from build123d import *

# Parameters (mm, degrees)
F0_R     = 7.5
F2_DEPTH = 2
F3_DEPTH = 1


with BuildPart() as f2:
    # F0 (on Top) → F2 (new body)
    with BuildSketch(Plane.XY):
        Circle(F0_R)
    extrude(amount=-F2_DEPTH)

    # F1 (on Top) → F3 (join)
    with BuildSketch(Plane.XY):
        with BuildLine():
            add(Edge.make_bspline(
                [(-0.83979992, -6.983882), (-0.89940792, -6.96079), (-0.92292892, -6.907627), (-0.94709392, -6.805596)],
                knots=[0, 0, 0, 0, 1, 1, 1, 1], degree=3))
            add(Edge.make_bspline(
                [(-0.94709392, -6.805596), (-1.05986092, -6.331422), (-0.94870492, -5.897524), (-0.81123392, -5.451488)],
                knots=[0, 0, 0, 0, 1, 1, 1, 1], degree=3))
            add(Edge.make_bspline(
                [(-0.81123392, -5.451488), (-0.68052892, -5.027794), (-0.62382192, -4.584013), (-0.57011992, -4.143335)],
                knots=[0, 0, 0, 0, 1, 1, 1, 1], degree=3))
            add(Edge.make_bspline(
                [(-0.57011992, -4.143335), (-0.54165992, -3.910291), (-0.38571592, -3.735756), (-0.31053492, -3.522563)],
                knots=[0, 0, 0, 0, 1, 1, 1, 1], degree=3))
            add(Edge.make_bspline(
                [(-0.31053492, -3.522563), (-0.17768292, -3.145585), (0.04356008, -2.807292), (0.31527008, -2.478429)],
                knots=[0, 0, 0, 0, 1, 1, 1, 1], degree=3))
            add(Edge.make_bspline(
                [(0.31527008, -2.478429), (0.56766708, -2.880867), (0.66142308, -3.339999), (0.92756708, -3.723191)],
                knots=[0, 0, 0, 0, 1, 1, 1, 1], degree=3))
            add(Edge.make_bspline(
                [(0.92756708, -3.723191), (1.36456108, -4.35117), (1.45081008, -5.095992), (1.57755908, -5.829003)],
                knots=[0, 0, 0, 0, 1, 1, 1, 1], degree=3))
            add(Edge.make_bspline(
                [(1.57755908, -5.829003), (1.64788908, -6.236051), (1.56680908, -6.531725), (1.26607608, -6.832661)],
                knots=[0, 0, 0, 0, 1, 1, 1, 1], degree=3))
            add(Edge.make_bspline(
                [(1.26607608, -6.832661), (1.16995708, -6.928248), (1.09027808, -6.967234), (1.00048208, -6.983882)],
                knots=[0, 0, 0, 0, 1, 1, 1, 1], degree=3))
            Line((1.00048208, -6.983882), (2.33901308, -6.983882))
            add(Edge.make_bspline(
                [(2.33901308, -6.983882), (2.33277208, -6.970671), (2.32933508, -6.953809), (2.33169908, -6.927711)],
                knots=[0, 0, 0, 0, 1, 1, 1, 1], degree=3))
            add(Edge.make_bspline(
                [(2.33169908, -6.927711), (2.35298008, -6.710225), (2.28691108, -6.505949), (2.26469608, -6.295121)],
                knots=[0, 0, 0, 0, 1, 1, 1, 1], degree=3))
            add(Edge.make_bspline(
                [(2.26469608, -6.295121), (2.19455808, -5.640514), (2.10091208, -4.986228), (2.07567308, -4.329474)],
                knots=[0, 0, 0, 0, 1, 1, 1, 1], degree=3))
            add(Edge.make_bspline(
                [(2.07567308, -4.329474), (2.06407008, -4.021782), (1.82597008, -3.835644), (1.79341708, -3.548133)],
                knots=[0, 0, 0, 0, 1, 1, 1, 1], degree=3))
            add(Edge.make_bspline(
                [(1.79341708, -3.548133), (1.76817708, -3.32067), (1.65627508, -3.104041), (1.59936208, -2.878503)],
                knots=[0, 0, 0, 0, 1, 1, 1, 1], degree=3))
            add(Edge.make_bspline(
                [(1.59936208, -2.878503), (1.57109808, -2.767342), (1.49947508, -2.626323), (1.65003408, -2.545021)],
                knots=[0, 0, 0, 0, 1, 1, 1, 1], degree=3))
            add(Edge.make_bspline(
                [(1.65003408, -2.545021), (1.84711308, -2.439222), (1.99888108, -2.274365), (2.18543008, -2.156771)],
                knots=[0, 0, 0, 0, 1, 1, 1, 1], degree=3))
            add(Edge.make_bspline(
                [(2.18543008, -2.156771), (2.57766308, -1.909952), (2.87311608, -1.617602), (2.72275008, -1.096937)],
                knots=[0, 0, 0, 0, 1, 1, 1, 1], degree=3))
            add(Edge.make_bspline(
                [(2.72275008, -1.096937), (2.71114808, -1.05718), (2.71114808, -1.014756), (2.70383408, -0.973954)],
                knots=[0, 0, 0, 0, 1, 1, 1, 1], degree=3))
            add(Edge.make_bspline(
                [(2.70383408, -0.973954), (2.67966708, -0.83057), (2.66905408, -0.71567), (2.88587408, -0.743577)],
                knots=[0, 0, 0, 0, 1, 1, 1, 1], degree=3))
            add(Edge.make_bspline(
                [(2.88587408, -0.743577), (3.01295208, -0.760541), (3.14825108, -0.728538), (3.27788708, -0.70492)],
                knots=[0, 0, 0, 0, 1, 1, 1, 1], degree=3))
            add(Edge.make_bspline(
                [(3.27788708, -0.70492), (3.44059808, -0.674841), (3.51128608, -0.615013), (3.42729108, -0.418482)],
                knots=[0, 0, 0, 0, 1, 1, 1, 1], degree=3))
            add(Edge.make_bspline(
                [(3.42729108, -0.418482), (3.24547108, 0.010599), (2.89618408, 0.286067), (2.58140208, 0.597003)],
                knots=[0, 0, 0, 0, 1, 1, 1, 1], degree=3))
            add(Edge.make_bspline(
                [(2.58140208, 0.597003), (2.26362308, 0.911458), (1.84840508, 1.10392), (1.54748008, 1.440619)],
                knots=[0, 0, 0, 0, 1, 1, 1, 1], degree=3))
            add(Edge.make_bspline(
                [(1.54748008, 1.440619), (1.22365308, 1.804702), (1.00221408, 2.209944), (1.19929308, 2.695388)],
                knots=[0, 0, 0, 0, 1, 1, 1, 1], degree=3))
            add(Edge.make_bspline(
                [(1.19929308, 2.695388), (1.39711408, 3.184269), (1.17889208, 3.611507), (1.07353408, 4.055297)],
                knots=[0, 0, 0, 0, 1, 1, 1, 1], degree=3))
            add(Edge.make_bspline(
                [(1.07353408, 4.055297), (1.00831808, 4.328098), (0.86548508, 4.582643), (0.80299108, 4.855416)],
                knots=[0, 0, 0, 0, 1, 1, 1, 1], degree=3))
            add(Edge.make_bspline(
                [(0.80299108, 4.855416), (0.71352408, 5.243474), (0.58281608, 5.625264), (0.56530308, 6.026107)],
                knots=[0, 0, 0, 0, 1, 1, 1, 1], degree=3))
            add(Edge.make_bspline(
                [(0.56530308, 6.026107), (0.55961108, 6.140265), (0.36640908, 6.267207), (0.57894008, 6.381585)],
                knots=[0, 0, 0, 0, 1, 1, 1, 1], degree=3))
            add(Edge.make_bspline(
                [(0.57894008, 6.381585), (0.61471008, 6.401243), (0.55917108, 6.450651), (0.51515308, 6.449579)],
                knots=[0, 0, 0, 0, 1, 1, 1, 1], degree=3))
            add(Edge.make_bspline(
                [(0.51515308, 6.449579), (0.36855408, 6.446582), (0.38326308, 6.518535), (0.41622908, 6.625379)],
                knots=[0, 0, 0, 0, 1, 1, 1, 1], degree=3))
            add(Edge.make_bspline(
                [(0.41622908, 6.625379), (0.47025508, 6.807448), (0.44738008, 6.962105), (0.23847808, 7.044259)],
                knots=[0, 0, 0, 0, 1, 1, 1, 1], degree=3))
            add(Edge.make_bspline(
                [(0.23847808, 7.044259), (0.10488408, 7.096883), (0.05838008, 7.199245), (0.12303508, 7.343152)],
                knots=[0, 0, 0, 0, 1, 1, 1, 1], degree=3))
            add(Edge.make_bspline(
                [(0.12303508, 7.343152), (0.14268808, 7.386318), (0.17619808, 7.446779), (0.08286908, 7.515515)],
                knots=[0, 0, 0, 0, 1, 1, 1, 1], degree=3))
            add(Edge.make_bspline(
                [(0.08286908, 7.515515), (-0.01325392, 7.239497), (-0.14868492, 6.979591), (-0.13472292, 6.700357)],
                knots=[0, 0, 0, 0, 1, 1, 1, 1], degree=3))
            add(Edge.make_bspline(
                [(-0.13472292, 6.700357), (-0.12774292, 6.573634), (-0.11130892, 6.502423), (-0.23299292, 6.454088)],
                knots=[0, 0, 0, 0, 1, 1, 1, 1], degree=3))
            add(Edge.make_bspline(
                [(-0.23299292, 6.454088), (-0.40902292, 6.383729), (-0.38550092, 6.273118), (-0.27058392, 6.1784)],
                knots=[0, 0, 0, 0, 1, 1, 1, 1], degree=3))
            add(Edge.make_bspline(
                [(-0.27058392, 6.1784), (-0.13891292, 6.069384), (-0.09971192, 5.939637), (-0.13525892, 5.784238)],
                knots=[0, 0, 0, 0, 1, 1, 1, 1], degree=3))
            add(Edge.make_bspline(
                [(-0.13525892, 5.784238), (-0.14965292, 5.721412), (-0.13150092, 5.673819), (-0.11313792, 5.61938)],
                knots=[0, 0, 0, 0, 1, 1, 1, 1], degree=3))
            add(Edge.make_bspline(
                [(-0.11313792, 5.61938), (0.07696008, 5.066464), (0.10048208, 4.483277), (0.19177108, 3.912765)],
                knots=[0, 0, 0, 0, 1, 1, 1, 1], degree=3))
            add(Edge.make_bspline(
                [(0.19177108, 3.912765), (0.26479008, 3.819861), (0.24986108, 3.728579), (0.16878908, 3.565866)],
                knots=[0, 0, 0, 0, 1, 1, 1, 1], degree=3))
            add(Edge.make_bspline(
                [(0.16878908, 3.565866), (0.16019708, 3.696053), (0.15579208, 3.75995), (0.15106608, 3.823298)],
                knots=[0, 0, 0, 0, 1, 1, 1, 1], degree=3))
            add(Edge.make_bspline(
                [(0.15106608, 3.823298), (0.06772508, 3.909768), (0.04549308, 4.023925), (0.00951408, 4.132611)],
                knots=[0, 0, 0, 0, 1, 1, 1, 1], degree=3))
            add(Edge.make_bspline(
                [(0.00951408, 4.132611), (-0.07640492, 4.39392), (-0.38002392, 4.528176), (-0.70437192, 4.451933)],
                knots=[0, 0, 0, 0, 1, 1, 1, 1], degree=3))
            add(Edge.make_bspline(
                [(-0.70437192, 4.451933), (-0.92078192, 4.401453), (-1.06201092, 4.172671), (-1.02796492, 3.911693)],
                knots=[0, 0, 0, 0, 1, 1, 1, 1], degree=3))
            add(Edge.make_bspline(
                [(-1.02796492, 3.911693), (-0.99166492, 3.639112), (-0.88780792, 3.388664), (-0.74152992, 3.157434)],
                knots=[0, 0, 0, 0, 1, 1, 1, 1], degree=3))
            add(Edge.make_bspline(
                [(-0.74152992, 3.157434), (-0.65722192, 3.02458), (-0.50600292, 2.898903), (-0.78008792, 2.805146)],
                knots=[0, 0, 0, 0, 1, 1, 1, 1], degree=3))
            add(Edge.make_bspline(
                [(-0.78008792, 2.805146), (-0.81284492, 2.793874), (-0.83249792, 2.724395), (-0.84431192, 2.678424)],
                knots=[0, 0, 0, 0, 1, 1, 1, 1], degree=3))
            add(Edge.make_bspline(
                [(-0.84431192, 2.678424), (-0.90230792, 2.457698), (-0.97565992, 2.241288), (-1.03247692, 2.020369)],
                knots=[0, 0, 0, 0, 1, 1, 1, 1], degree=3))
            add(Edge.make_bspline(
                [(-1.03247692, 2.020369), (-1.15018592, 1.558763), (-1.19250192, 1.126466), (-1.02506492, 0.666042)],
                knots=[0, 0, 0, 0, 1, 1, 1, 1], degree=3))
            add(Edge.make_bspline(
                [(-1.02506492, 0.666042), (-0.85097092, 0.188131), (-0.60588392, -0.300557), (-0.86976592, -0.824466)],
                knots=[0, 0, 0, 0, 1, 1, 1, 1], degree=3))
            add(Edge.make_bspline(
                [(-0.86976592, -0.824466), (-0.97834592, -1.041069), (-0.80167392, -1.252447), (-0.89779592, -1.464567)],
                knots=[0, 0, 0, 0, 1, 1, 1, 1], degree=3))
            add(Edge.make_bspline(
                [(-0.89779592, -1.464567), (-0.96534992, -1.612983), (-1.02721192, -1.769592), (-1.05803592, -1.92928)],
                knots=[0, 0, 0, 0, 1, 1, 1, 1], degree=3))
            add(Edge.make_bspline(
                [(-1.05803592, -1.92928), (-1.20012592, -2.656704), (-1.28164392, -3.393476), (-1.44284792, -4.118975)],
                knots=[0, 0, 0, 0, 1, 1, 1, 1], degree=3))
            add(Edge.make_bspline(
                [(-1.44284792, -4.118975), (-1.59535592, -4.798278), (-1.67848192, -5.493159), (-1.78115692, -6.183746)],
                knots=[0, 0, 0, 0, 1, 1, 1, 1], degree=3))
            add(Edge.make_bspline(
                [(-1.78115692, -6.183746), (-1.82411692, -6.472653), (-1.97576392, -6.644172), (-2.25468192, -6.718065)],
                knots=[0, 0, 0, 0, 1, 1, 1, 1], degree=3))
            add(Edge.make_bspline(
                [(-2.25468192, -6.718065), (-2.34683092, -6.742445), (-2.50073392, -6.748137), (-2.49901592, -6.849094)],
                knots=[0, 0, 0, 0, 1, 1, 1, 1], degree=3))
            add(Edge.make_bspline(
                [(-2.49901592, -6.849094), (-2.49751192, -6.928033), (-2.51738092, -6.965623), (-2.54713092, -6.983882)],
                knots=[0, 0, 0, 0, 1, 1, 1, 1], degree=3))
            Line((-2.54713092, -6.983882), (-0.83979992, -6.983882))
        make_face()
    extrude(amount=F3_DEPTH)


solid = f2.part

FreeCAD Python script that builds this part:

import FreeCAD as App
import Part
import Sketcher

V = App.Vector

doc = App.newDocument("Part")
body = doc.addObject("PartDesign::Body", "Body")

# Sketch on XY plane
sketch1 = body.newObject("Sketcher::SketchObject", "Sketch")
sketch1.AttachmentSupport = (doc.getObject("XY_Plane"), [""])
sketch1.MapMode = "FlatFace"
sketch1.addGeometry(Part.Circle(V(0, 0, 0), V(0, 0, 1), 8), False)
sketch1.addConstraint(Sketcher.Constraint("Coincident", 0, 3, -1, 1))
sketch1.addConstraint(Sketcher.Constraint("Diameter", 0, 15.0))
pad1 = body.newObject("PartDesign::Pad", "Pad")
pad1.Profile = sketch1
pad1.Length = 2
pad1.Reversed = True

# Sketch on XY plane
sketch2 = body.newObject("Sketcher::SketchObject", "Sketch001")
sketch2.AttachmentSupport = (doc.getObject("XY_Plane"), [""])
sketch2.MapMode = "FlatFace"
sketch2.addGeometry(Part.BSplineCurve([V(-0.8398, -6.983882, 0), V(-0.899408, -6.96079, 0), V(-0.922929, -6.907627, 0), V(-0.947094, -6.805596, 0)], [4, 4], [0, 1], False, 3, [1, 1, 1, 1], False), False)
sketch2.addGeometry(Part.BSplineCurve([V(-0.947094, -6.805596, 0), V(-1.059861, -6.331422, 0), V(-0.948705, -5.897524, 0), V(-0.811234, -5.451488, 0)], [4, 4], [0, 1], False, 3, [1, 1, 1, 1], False), False)
sketch2.addGeometry(Part.BSplineCurve([V(-0.811234, -5.451488, 0), V(-0.680529, -5.027794, 0), V(-0.623822, -4.584013, 0), V(-0.57012, -4.143335, 0)], [4, 4], [0, 1], False, 3, [1, 1, 1, 1], False), False)
sketch2.addGeometry(Part.BSplineCurve([V(-0.57012, -4.143335, 0), V(-0.54166, -3.910291, 0), V(-0.385716, -3.735756, 0), V(-0.310535, -3.522563, 0)], [4, 4], [0, 1], False, 3, [1, 1, 1, 1], False), False)
sketch2.addGeometry(Part.BSplineCurve([V(-0.310535, -3.522563, 0), V(-0.177683, -3.145585, 0), V(0.04356, -2.807292, 0), V(0.31527, -2.478429, 0)], [4, 4], [0, 1], False, 3, [1, 1, 1, 1], False), False)
sketch2.addGeometry(Part.BSplineCurve([V(0.31527, -2.478429, 0), V(0.567667, -2.880867, 0), V(0.661423, -3.339999, 0), V(0.927567, -3.723191, 0)], [4, 4], [0, 1], False, 3, [1, 1, 1, 1], False), False)
sketch2.addGeometry(Part.BSplineCurve([V(0.927567, -3.723191, 0), V(1.364561, -4.35117, 0), V(1.45081, -5.095992, 0), V(1.577559, -5.829003, 0)], [4, 4], [0, 1], False, 3, [1, 1, 1, 1], False), False)
sketch2.addGeometry(Part.BSplineCurve([V(1.577559, -5.829003, 0), V(1.647889, -6.236051, 0), V(1.566809, -6.531725, 0), V(1.266076, -6.832661, 0)], [4, 4], [0, 1], False, 3, [1, 1, 1, 1], False), False)
sketch2.addGeometry(Part.BSplineCurve([V(1.266076, -6.832661, 0), V(1.169957, -6.928248, 0), V(1.090278, -6.967234, 0), V(1.000482, -6.983882, 0)], [4, 4], [0, 1], False, 3, [1, 1, 1, 1], False), False)
sketch2.addGeometry(Part.LineSegment(V(1.000482, -6.983882, 0), V(2.339013, -6.983882, 0)), False)
sketch2.addGeometry(Part.BSplineCurve([V(2.339013, -6.983882, 0), V(2.332772, -6.970671, 0), V(2.329335, -6.953809, 0), V(2.331699, -6.927711, 0)], [4, 4], [0, 1], False, 3, [1, 1, 1, 1], False), False)
sketch2.addGeometry(Part.BSplineCurve([V(2.331699, -6.927711, 0), V(2.35298, -6.710225, 0), V(2.286911, -6.505949, 0), V(2.264696, -6.295121, 0)], [4, 4], [0, 1], False, 3, [1, 1, 1, 1], False), False)
sketch2.addGeometry(Part.BSplineCurve([V(2.264696, -6.295121, 0), V(2.194558, -5.640514, 0), V(2.100912, -4.986228, 0), V(2.075673, -4.329474, 0)], [4, 4], [0, 1], False, 3, [1, 1, 1, 1], False), False)
sketch2.addGeometry(Part.BSplineCurve([V(2.075673, -4.329474, 0), V(2.06407, -4.021782, 0), V(1.82597, -3.835644, 0), V(1.793417, -3.548133, 0)], [4, 4], [0, 1], False, 3, [1, 1, 1, 1], False), False)
sketch2.addGeometry(Part.BSplineCurve([V(1.793417, -3.548133, 0), V(1.768177, -3.32067, 0), V(1.656275, -3.104041, 0), V(1.599362, -2.878503, 0)], [4, 4], [0, 1], False, 3, [1, 1, 1, 1], False), False)
sketch2.addGeometry(Part.BSplineCurve([V(1.599362, -2.878503, 0), V(1.571098, -2.767342, 0), V(1.499475, -2.626323, 0), V(1.650034, -2.545021, 0)], [4, 4], [0, 1], False, 3, [1, 1, 1, 1], False), False)
sketch2.addGeometry(Part.BSplineCurve([V(1.650034, -2.545021, 0), V(1.847113, -2.439222, 0), V(1.998881, -2.274365, 0), V(2.18543, -2.156771, 0)], [4, 4], [0, 1], False, 3, [1, 1, 1, 1], False), False)
sketch2.addGeometry(Part.BSplineCurve([V(2.18543, -2.156771, 0), V(2.577663, -1.909952, 0), V(2.873116, -1.617602, 0), V(2.72275, -1.096937, 0)], [4, 4], [0, 1], False, 3, [1, 1, 1, 1], False), False)
sketch2.addGeometry(Part.BSplineCurve([V(2.72275, -1.096937, 0), V(2.711148, -1.05718, 0), V(2.711148, -1.014756, 0), V(2.703834, -0.973954, 0)], [4, 4], [0, 1], False, 3, [1, 1, 1, 1], False), False)
sketch2.addGeometry(Part.BSplineCurve([V(2.703834, -0.973954, 0), V(2.679667, -0.83057, 0), V(2.669054, -0.71567, 0), V(2.885874, -0.743577, 0)], [4, 4], [0, 1], False, 3, [1, 1, 1, 1], False), False)
sketch2.addGeometry(Part.BSplineCurve([V(2.885874, -0.743577, 0), V(3.012952, -0.760541, 0), V(3.148251, -0.728538, 0), V(3.277887, -0.70492, 0)], [4, 4], [0, 1], False, 3, [1, 1, 1, 1], False), False)
sketch2.addGeometry(Part.BSplineCurve([V(3.277887, -0.70492, 0), V(3.440598, -0.674841, 0), V(3.511286, -0.615013, 0), V(3.427291, -0.418482, 0)], [4, 4], [0, 1], False, 3, [1, 1, 1, 1], False), False)
sketch2.addGeometry(Part.BSplineCurve([V(3.427291, -0.418482, 0), V(3.245471, 0.010599, 0), V(2.896184, 0.286067, 0), V(2.581402, 0.597003, 0)], [4, 4], [0, 1], False, 3, [1, 1, 1, 1], False), False)
sketch2.addGeometry(Part.BSplineCurve([V(2.581402, 0.597003, 0), V(2.263623, 0.911458, 0), V(1.848405, 1.10392, 0), V(1.54748, 1.440619, 0)], [4, 4], [0, 1], False, 3, [1, 1, 1, 1], False), False)
sketch2.addGeometry(Part.BSplineCurve([V(1.54748, 1.440619, 0), V(1.223653, 1.804702, 0), V(1.002214, 2.209944, 0), V(1.199293, 2.695388, 0)], [4, 4], [0, 1], False, 3, [1, 1, 1, 1], False), False)
sketch2.addGeometry(Part.BSplineCurve([V(1.199293, 2.695388, 0), V(1.397114, 3.184269, 0), V(1.178892, 3.611507, 0), V(1.073534, 4.055297, 0)], [4, 4], [0, 1], False, 3, [1, 1, 1, 1], False), False)
sketch2.addGeometry(Part.BSplineCurve([V(1.073534, 4.055297, 0), V(1.008318, 4.328098, 0), V(0.865485, 4.582643, 0), V(0.802991, 4.855416, 0)], [4, 4], [0, 1], False, 3, [1, 1, 1, 1], False), False)
sketch2.addGeometry(Part.BSplineCurve([V(0.802991, 4.855416, 0), V(0.713524, 5.243474, 0), V(0.582816, 5.625264, 0), V(0.565303, 6.026107, 0)], [4, 4], [0, 1], False, 3, [1, 1, 1, 1], False), False)
sketch2.addGeometry(Part.BSplineCurve([V(0.565303, 6.026107, 0), V(0.559611, 6.140265, 0), V(0.366409, 6.267207, 0), V(0.57894, 6.381585, 0)], [4, 4], [0, 1], False, 3, [1, 1, 1, 1], False), False)
sketch2.addGeometry(Part.BSplineCurve([V(0.57894, 6.381585, 0), V(0.61471, 6.401243, 0), V(0.559171, 6.450651, 0), V(0.515153, 6.449579, 0)], [4, 4], [0, 1], False, 3, [1, 1, 1, 1], False), False)
sketch2.addGeometry(Part.BSplineCurve([V(0.515153, 6.449579, 0), V(0.368554, 6.446582, 0), V(0.383263, 6.518535, 0), V(0.416229, 6.625379, 0)], [4, 4], [0, 1], False, 3, [1, 1, 1, 1], False), False)
sketch2.addGeometry(Part.BSplineCurve([V(0.416229, 6.625379, 0), V(0.470255, 6.807448, 0), V(0.44738, 6.962105, 0), V(0.238478, 7.044259, 0)], [4, 4], [0, 1], False, 3, [1, 1, 1, 1], False), False)
sketch2.addGeometry(Part.BSplineCurve([V(0.238478, 7.044259, 0), V(0.104884, 7.096883, 0), V(0.05838, 7.199245, 0), V(0.123035, 7.343152, 0)], [4, 4], [0, 1], False, 3, [1, 1, 1, 1], False), False)
sketch2.addGeometry(Part.BSplineCurve([V(0.123035, 7.343152, 0), V(0.142688, 7.386318, 0), V(0.176198, 7.446779, 0), V(0.082869, 7.515515, 0)], [4, 4], [0, 1], False, 3, [1, 1, 1, 1], False), False)
sketch2.addGeometry(Part.BSplineCurve([V(0.082869, 7.515515, 0), V(-0.013254, 7.239497, 0), V(-0.148685, 6.979591, 0), V(-0.134723, 6.700357, 0)], [4, 4], [0, 1], False, 3, [1, 1, 1, 1], False), False)
sketch2.addGeometry(Part.BSplineCurve([V(-0.134723, 6.700357, 0), V(-0.127743, 6.573634, 0), V(-0.111309, 6.502423, 0), V(-0.232993, 6.454088, 0)], [4, 4], [0, 1], False, 3, [1, 1, 1, 1], False), False)
sketch2.addGeometry(Part.BSplineCurve([V(-0.232993, 6.454088, 0), V(-0.409023, 6.383729, 0), V(-0.385501, 6.273118, 0), V(-0.270584, 6.1784, 0)], [4, 4], [0, 1], False, 3, [1, 1, 1, 1], False), False)
sketch2.addGeometry(Part.BSplineCurve([V(-0.270584, 6.1784, 0), V(-0.138913, 6.069384, 0), V(-0.099712, 5.939637, 0), V(-0.135259, 5.784238, 0)], [4, 4], [0, 1], False, 3, [1, 1, 1, 1], False), False)
sketch2.addGeometry(Part.BSplineCurve([V(-0.135259, 5.784238, 0), V(-0.149653, 5.721412, 0), V(-0.131501, 5.673819, 0), V(-0.113138, 5.61938, 0)], [4, 4], [0, 1], False, 3, [1, 1, 1, 1], False), False)
sketch2.addGeometry(Part.BSplineCurve([V(-0.113138, 5.61938, 0), V(0.07696, 5.066464, 0), V(0.100482, 4.483277, 0), V(0.191771, 3.912765, 0)], [4, 4], [0, 1], False, 3, [1, 1, 1, 1], False), False)
sketch2.addGeometry(Part.BSplineCurve([V(0.191771, 3.912765, 0), V(0.26479, 3.819861, 0), V(0.249861, 3.728579, 0), V(0.168789, 3.565866, 0)], [4, 4], [0, 1], False, 3, [1, 1, 1, 1], False), False)
sketch2.addGeometry(Part.BSplineCurve([V(0.168789, 3.565866, 0), V(0.160197, 3.696053, 0), V(0.155792, 3.75995, 0), V(0.151066, 3.823298, 0)], [4, 4], [0, 1], False, 3, [1, 1, 1, 1], False), False)
sketch2.addGeometry(Part.BSplineCurve([V(0.151066, 3.823298, 0), V(0.067725, 3.909768, 0), V(0.045493, 4.023925, 0), V(0.009514, 4.132611, 0)], [4, 4], [0, 1], False, 3, [1, 1, 1, 1], False), False)
sketch2.addGeometry(Part.BSplineCurve([V(0.009514, 4.132611, 0), V(-0.076405, 4.39392, 0), V(-0.380024, 4.528176, 0), V(-0.704372, 4.451933, 0)], [4, 4], [0, 1], False, 3, [1, 1, 1, 1], False), False)
sketch2.addGeometry(Part.BSplineCurve([V(-0.704372, 4.451933, 0), V(-0.920782, 4.401453, 0), V(-1.062011, 4.172671, 0), V(-1.027965, 3.911693, 0)], [4, 4], [0, 1], False, 3, [1, 1, 1, 1], False), False)
sketch2.addGeometry(Part.BSplineCurve([V(-1.027965, 3.911693, 0), V(-0.991665, 3.639112, 0), V(-0.887808, 3.388664, 0), V(-0.74153, 3.157434, 0)], [4, 4], [0, 1], False, 3, [1, 1, 1, 1], False), False)
sketch2.addGeometry(Part.BSplineCurve([V(-0.74153, 3.157434, 0), V(-0.657222, 3.02458, 0), V(-0.506003, 2.898903, 0), V(-0.780088, 2.805146, 0)], [4, 4], [0, 1], False, 3, [1, 1, 1, 1], False), False)
sketch2.addGeometry(Part.BSplineCurve([V(-0.780088, 2.805146, 0), V(-0.812845, 2.793874, 0), V(-0.832498, 2.724395, 0), V(-0.844312, 2.678424, 0)], [4, 4], [0, 1], False, 3, [1, 1, 1, 1], False), False)
sketch2.addGeometry(Part.BSplineCurve([V(-0.844312, 2.678424, 0), V(-0.902308, 2.457698, 0), V(-0.97566, 2.241288, 0), V(-1.032477, 2.020369, 0)], [4, 4], [0, 1], False, 3, [1, 1, 1, 1], False), False)
sketch2.addGeometry(Part.BSplineCurve([V(-1.032477, 2.020369, 0), V(-1.150186, 1.558763, 0), V(-1.192502, 1.126466, 0), V(-1.025065, 0.666042, 0)], [4, 4], [0, 1], False, 3, [1, 1, 1, 1], False), False)
sketch2.addGeometry(Part.BSplineCurve([V(-1.025065, 0.666042, 0), V(-0.850971, 0.188131, 0), V(-0.605884, -0.300557, 0), V(-0.869766, -0.824466, 0)], [4, 4], [0, 1], False, 3, [1, 1, 1, 1], False), False)
sketch2.addGeometry(Part.BSplineCurve([V(-0.869766, -0.824466, 0), V(-0.978346, -1.041069, 0), V(-0.801674, -1.252447, 0), V(-0.897796, -1.464567, 0)], [4, 4], [0, 1], False, 3, [1, 1, 1, 1], False), False)
sketch2.addGeometry(Part.BSplineCurve([V(-0.897796, -1.464567, 0), V(-0.96535, -1.612983, 0), V(-1.027212, -1.769592, 0), V(-1.058036, -1.92928, 0)], [4, 4], [0, 1], False, 3, [1, 1, 1, 1], False), False)
sketch2.addGeometry(Part.BSplineCurve([V(-1.058036, -1.92928, 0), V(-1.200126, -2.656704, 0), V(-1.281644, -3.393476, 0), V(-1.442848, -4.118975, 0)], [4, 4], [0, 1], False, 3, [1, 1, 1, 1], False), False)
sketch2.addGeometry(Part.BSplineCurve([V(-1.442848, -4.118975, 0), V(-1.595356, -4.798278, 0), V(-1.678482, -5.493159, 0), V(-1.781157, -6.183746, 0)], [4, 4], [0, 1], False, 3, [1, 1, 1, 1], False), False)
sketch2.addGeometry(Part.BSplineCurve([V(-1.781157, -6.183746, 0), V(-1.824117, -6.472653, 0), V(-1.975764, -6.644172, 0), V(-2.254682, -6.718065, 0)], [4, 4], [0, 1], False, 3, [1, 1, 1, 1], False), False)
sketch2.addGeometry(Part.BSplineCurve([V(-2.254682, -6.718065, 0), V(-2.346831, -6.742445, 0), V(-2.500734, -6.748137, 0), V(-2.499016, -6.849094, 0)], [4, 4], [0, 1], False, 3, [1, 1, 1, 1], False), False)
sketch2.addGeometry(Part.BSplineCurve([V(-2.499016, -6.849094, 0), V(-2.497512, -6.928033, 0), V(-2.517381, -6.965623, 0), V(-2.547131, -6.983882, 0)], [4, 4], [0, 1], False, 3, [1, 1, 1, 1], False), False)
sketch2.addGeometry(Part.LineSegment(V(-2.547131, -6.983882, 0), V(-0.8398, -6.983882, 0)), False)
sketch2.addConstraint(Sketcher.Constraint("Block", 0))
sketch2.addConstraint(Sketcher.Constraint("Block", 1))
sketch2.addConstraint(Sketcher.Constraint("Block", 2))
sketch2.addConstraint(Sketcher.Constraint("Block", 3))
sketch2.addConstraint(Sketcher.Constraint("Block", 4))
sketch2.addConstraint(Sketcher.Constraint("Block", 5))
sketch2.addConstraint(Sketcher.Constraint("Block", 6))
sketch2.addConstraint(Sketcher.Constraint("Block", 7))
sketch2.addConstraint(Sketcher.Constraint("Block", 8))
sketch2.addConstraint(Sketcher.Constraint("Block", 10))
sketch2.addConstraint(Sketcher.Constraint("Block", 11))
sketch2.addConstraint(Sketcher.Constraint("Block", 12))
sketch2.addConstraint(Sketcher.Constraint("Block", 13))
sketch2.addConstraint(Sketcher.Constraint("Block", 14))
sketch2.addConstraint(Sketcher.Constraint("Block", 15))
sketch2.addConstraint(Sketcher.Constraint("Block", 16))
sketch2.addConstraint(Sketcher.Constraint("Block", 17))
sketch2.addConstraint(Sketcher.Constraint("Block", 18))
sketch2.addConstraint(Sketcher.Constraint("Block", 19))
sketch2.addConstraint(Sketcher.Constraint("Block", 20))
sketch2.addConstraint(Sketcher.Constraint("Block", 21))
sketch2.addConstraint(Sketcher.Constraint("Block", 22))
sketch2.addConstraint(Sketcher.Constraint("Block", 23))
sketch2.addConstraint(Sketcher.Constraint("Block", 24))
sketch2.addConstraint(Sketcher.Constraint("Block", 25))
sketch2.addConstraint(Sketcher.Constraint("Block", 26))
sketch2.addConstraint(Sketcher.Constraint("Block", 27))
sketch2.addConstraint(Sketcher.Constraint("Block", 28))
sketch2.addConstraint(Sketcher.Constraint("Block", 29))
sketch2.addConstraint(Sketcher.Constraint("Block", 30))
sketch2.addConstraint(Sketcher.Constraint("Block", 31))
sketch2.addConstraint(Sketcher.Constraint("Block", 32))
sketch2.addConstraint(Sketcher.Constraint("Block", 33))
sketch2.addConstraint(Sketcher.Constraint("Block", 34))
sketch2.addConstraint(Sketcher.Constraint("Block", 35))
sketch2.addConstraint(Sketcher.Constraint("Block", 36))
sketch2.addConstraint(Sketcher.Constraint("Block", 37))
sketch2.addConstraint(Sketcher.Constraint("Block", 38))
sketch2.addConstraint(Sketcher.Constraint("Block", 39))
sketch2.addConstraint(Sketcher.Constraint("Block", 40))
sketch2.addConstraint(Sketcher.Constraint("Block", 41))
sketch2.addConstraint(Sketcher.Constraint("Block", 42))
sketch2.addConstraint(Sketcher.Constraint("Block", 43))
sketch2.addConstraint(Sketcher.Constraint("Block", 44))
sketch2.addConstraint(Sketcher.Constraint("Block", 45))
sketch2.addConstraint(Sketcher.Constraint("Block", 46))
sketch2.addConstraint(Sketcher.Constraint("Block", 47))
sketch2.addConstraint(Sketcher.Constraint("Block", 48))
sketch2.addConstraint(Sketcher.Constraint("Block", 49))
sketch2.addConstraint(Sketcher.Constraint("Block", 50))
sketch2.addConstraint(Sketcher.Constraint("Block", 51))
sketch2.addConstraint(Sketcher.Constraint("Block", 52))
sketch2.addConstraint(Sketcher.Constraint("Block", 53))
sketch2.addConstraint(Sketcher.Constraint("Block", 54))
sketch2.addConstraint(Sketcher.Constraint("Block", 55))
sketch2.addConstraint(Sketcher.Constraint("Block", 56))
sketch2.addConstraint(Sketcher.Constraint("Block", 57))
sketch2.addConstraint(Sketcher.Constraint("Coincident", 8, 2, 9, 1))
sketch2.addConstraint(Sketcher.Constraint("Coincident", 9, 2, 10, 1))
sketch2.addConstraint(Sketcher.Constraint("Coincident", 57, 2, 58, 1))
sketch2.addConstraint(Sketcher.Constraint("Coincident", 58, 2, 0, 1))
pad2 = body.newObject("PartDesign::Pad", "Pad001")
pad2.Profile = sketch2
pad2.Length = 1

doc.recompute()
